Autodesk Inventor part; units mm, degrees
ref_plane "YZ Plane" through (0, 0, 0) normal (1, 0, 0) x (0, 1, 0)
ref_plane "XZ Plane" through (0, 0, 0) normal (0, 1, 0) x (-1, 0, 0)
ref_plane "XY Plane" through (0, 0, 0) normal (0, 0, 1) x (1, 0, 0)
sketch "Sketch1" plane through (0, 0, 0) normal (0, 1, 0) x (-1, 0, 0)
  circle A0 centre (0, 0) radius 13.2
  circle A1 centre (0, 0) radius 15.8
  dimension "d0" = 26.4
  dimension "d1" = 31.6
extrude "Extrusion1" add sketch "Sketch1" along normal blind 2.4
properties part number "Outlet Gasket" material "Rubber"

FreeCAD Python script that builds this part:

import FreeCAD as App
import Part
import Sketcher
from FreeCAD import Vector
Q = App.Units.Quantity

doc = App.newDocument("Part")
params = doc.addObject("Spreadsheet::Sheet", "Params")
for row, (alias, value) in enumerate([
    ("sketch1_diameter", "31.6 mm"),
    ("sketch1_diameter2", "26.4 mm"),
    ("pad1_length", "2.4 mm"),
], start=1):
    params.set(f"A{row}", alias)
    params.set(f"B{row}", "=" + value)
    params.setAlias(f"B{row}", alias)

body = doc.addObject("PartDesign::Body", "Body")

sketch1 = body.newObject("Sketcher::SketchObject", "Sketch")
sketch1.AttachmentSupport = (doc.getObject("XZ_Plane"), [""])
sketch1.MapMode = "FlatFace"
sketch1.addGeometry(Part.Circle(Vector(0, 0, 0), Vector(0, 0, 1), 16), False)
sketch1.addGeometry(Part.Circle(Vector(0, 0, 0), Vector(0, 0, 1), 13), False)
sketch1.addConstraint(Sketcher.Constraint("Coincident", 0, 3, -1, 1))
sketch1.addConstraint(Sketcher.Constraint("Coincident", 1, 3, -1, 1))
sketch1.addConstraint(Sketcher.Constraint("Diameter", 0, Q("31.6 mm")))
sketch1.addConstraint(Sketcher.Constraint("Diameter", 1, Q("26.4 mm")))
sketch1.setExpression("Constraints[2]", "Params.sketch1_diameter")
sketch1.setExpression("Constraints[3]", "Params.sketch1_diameter2")
pad1 = body.newObject("PartDesign::Pad", "Pad")
pad1.Profile = sketch1
pad1.setExpression("Length", "Params.pad1_length")
pad1.Reversed = True

doc.recompute()
